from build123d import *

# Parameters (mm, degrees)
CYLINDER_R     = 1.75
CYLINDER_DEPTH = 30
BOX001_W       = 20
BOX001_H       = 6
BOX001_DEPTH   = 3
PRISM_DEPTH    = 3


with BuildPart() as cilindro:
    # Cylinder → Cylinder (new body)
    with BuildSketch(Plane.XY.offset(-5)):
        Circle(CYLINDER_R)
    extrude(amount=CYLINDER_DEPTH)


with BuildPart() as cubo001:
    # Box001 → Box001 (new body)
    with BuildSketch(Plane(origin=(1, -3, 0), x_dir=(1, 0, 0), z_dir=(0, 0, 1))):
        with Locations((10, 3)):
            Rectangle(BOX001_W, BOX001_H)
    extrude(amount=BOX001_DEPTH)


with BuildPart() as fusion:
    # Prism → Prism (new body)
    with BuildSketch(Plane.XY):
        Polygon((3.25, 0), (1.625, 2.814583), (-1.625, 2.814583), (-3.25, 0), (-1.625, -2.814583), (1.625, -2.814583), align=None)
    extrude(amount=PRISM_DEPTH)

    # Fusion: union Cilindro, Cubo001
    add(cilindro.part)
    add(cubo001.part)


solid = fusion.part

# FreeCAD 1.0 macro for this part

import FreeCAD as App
import Part
import Sketcher

V = App.Vector
Q = App.Units.Quantity

doc = App.newDocument("Part")
body = doc.addObject("PartDesign::Body", "Body")

sketch1 = body.newObject("Sketcher::SketchObject", "Sketch")
sketch1.AttachmentSupport = (doc.getObject("XY_Plane"), [""])
sketch1.MapMode = "FlatFace"
sketch1.AttachmentOffset = App.Placement(V(0, 0, -5), App.Rotation())
sketch1.addGeometry(Part.Circle(V(0, 0, 0), V(0, 0, 1), 1.8), False)
sketch1.addConstraint([
    Sketcher.Constraint("Coincident", 0, 3, -1, 1),
    Sketcher.Constraint("Diameter", 0, Q("3.5 mm")),
])
pad1 = body.newObject("PartDesign::Pad", "Pad")
pad1.Profile = sketch1
pad1.Length = 30
body2 = doc.addObject("PartDesign::Body", "Body001")

sketch2 = body2.newObject("Sketcher::SketchObject", "Sketch001")
sketch2.AttachmentSupport = (doc.getObject("XY_Plane001"), [""])
sketch2.MapMode = "FlatFace"
sketch2.addGeometry([
    Part.LineSegment(V(1, 3, 0), V(1, -3, 0)),
    Part.LineSegment(V(1, -3, 0), V(21, -3, 0)),
    Part.LineSegment(V(21, -3, 0), V(21, 3, 0)),
    Part.LineSegment(V(21, 3, 0), V(1, 3, 0)),
], False)
sketch2.addConstraint([
    Sketcher.Constraint("Coincident", 0, 2, 1, 1),
    Sketcher.Constraint("Coincident", 1, 2, 2, 1),
    Sketcher.Constraint("Coincident", 2, 2, 3, 1),
    Sketcher.Constraint("Coincident", 3, 2, 0, 1),
    Sketcher.Constraint("Vertical", 0),
    Sketcher.Constraint("Horizontal", 1),
    Sketcher.Constraint("Vertical", 2),
    Sketcher.Constraint("Horizontal", 3),
    Sketcher.Constraint("DistanceX", 1, 1, 1, 2, Q("20 mm")),
    Sketcher.Constraint("DistanceY", 0, 2, 0, 1, Q("6 mm")),
    Sketcher.Constraint("DistanceX", -1, 1, 0, 2, Q("1 mm")),
    Sketcher.Constraint("DistanceY", 0, 2, -1, 1, Q("3 mm")),
])
pad2 = body2.newObject("PartDesign::Pad", "Pad001")
pad2.Profile = sketch2
pad2.Length = 3
body3 = doc.addObject("PartDesign::Body", "Body002")

sketch3 = body3.newObject("Sketcher::SketchObject", "Sketch002")
sketch3.AttachmentSupport = (doc.getObject("XY_Plane002"), [""])
sketch3.MapMode = "FlatFace"
sketch3.addGeometry([
    Part.LineSegment(V(3.2, 0, 0), V(1.6, 2.8, 0)),
    Part.LineSegment(V(1.6, 2.8, 0), V(-1.6, 2.8, 0)),
    Part.LineSegment(V(-1.6, 2.8, 0), V(-3.2, 0, 0)),
    Part.LineSegment(V(-3.2, 0, 0), V(-1.6, -2.8, 0)),
    Part.LineSegment(V(-1.6, -2.8, 0), V(1.6, -2.8, 0)),
    Part.LineSegment(V(1.6, -2.8, 0), V(3.2, 0, 0)),
], False)
sketch3.addConstraint([
    Sketcher.Constraint("Coincident", 0, 2, 1, 1),
    Sketcher.Constraint("Coincident", 1, 2, 2, 1),
    Sketcher.Constraint("Coincident", 2, 2, 3, 1),
    Sketcher.Constraint("Coincident", 3, 2, 4, 1),
    Sketcher.Constraint("Coincident", 4, 2, 5, 1),
    Sketcher.Constraint("Coincident", 5, 2, 0, 1),
    Sketcher.Constraint("Horizontal", 1),
    Sketcher.Constraint("Horizontal", 4),
    Sketcher.Constraint("Symmetric", 0, 2, 3, 2, -1, 1),
    Sketcher.Constraint("Symmetric", 2, 2, 5, 2, -1, 1),
    Sketcher.Constraint("PointOnObject", 2, 2, -1),
    Sketcher.Constraint("Parallel", 2, 5),
    Sketcher.Constraint("Vertical", 1, 2, 3, 2),
    Sketcher.Constraint("Angle", 0, Q("119.999996 deg")),
    Sketcher.Constraint("DistanceX", 1, 2, 1, 1, Q("3.25 mm")),
    Sketcher.Constraint("DistanceX", 2, 2, 5, 2, Q("6.5 mm")),
])
pad3 = body3.newObject("PartDesign::Pad", "Pad002")
pad3.Profile = sketch3
pad3.Length = 3
doc.recompute()

boolean = body3.newObject("PartDesign::Boolean", "Boolean")
boolean.Type = "Fuse"
boolean.addObjects([body])
doc.recompute()

boolean2 = body3.newObject("PartDesign::Boolean", "Boolean001")
boolean2.Type = "Fuse"
boolean2.addObjects([body2])

doc.recompute()
